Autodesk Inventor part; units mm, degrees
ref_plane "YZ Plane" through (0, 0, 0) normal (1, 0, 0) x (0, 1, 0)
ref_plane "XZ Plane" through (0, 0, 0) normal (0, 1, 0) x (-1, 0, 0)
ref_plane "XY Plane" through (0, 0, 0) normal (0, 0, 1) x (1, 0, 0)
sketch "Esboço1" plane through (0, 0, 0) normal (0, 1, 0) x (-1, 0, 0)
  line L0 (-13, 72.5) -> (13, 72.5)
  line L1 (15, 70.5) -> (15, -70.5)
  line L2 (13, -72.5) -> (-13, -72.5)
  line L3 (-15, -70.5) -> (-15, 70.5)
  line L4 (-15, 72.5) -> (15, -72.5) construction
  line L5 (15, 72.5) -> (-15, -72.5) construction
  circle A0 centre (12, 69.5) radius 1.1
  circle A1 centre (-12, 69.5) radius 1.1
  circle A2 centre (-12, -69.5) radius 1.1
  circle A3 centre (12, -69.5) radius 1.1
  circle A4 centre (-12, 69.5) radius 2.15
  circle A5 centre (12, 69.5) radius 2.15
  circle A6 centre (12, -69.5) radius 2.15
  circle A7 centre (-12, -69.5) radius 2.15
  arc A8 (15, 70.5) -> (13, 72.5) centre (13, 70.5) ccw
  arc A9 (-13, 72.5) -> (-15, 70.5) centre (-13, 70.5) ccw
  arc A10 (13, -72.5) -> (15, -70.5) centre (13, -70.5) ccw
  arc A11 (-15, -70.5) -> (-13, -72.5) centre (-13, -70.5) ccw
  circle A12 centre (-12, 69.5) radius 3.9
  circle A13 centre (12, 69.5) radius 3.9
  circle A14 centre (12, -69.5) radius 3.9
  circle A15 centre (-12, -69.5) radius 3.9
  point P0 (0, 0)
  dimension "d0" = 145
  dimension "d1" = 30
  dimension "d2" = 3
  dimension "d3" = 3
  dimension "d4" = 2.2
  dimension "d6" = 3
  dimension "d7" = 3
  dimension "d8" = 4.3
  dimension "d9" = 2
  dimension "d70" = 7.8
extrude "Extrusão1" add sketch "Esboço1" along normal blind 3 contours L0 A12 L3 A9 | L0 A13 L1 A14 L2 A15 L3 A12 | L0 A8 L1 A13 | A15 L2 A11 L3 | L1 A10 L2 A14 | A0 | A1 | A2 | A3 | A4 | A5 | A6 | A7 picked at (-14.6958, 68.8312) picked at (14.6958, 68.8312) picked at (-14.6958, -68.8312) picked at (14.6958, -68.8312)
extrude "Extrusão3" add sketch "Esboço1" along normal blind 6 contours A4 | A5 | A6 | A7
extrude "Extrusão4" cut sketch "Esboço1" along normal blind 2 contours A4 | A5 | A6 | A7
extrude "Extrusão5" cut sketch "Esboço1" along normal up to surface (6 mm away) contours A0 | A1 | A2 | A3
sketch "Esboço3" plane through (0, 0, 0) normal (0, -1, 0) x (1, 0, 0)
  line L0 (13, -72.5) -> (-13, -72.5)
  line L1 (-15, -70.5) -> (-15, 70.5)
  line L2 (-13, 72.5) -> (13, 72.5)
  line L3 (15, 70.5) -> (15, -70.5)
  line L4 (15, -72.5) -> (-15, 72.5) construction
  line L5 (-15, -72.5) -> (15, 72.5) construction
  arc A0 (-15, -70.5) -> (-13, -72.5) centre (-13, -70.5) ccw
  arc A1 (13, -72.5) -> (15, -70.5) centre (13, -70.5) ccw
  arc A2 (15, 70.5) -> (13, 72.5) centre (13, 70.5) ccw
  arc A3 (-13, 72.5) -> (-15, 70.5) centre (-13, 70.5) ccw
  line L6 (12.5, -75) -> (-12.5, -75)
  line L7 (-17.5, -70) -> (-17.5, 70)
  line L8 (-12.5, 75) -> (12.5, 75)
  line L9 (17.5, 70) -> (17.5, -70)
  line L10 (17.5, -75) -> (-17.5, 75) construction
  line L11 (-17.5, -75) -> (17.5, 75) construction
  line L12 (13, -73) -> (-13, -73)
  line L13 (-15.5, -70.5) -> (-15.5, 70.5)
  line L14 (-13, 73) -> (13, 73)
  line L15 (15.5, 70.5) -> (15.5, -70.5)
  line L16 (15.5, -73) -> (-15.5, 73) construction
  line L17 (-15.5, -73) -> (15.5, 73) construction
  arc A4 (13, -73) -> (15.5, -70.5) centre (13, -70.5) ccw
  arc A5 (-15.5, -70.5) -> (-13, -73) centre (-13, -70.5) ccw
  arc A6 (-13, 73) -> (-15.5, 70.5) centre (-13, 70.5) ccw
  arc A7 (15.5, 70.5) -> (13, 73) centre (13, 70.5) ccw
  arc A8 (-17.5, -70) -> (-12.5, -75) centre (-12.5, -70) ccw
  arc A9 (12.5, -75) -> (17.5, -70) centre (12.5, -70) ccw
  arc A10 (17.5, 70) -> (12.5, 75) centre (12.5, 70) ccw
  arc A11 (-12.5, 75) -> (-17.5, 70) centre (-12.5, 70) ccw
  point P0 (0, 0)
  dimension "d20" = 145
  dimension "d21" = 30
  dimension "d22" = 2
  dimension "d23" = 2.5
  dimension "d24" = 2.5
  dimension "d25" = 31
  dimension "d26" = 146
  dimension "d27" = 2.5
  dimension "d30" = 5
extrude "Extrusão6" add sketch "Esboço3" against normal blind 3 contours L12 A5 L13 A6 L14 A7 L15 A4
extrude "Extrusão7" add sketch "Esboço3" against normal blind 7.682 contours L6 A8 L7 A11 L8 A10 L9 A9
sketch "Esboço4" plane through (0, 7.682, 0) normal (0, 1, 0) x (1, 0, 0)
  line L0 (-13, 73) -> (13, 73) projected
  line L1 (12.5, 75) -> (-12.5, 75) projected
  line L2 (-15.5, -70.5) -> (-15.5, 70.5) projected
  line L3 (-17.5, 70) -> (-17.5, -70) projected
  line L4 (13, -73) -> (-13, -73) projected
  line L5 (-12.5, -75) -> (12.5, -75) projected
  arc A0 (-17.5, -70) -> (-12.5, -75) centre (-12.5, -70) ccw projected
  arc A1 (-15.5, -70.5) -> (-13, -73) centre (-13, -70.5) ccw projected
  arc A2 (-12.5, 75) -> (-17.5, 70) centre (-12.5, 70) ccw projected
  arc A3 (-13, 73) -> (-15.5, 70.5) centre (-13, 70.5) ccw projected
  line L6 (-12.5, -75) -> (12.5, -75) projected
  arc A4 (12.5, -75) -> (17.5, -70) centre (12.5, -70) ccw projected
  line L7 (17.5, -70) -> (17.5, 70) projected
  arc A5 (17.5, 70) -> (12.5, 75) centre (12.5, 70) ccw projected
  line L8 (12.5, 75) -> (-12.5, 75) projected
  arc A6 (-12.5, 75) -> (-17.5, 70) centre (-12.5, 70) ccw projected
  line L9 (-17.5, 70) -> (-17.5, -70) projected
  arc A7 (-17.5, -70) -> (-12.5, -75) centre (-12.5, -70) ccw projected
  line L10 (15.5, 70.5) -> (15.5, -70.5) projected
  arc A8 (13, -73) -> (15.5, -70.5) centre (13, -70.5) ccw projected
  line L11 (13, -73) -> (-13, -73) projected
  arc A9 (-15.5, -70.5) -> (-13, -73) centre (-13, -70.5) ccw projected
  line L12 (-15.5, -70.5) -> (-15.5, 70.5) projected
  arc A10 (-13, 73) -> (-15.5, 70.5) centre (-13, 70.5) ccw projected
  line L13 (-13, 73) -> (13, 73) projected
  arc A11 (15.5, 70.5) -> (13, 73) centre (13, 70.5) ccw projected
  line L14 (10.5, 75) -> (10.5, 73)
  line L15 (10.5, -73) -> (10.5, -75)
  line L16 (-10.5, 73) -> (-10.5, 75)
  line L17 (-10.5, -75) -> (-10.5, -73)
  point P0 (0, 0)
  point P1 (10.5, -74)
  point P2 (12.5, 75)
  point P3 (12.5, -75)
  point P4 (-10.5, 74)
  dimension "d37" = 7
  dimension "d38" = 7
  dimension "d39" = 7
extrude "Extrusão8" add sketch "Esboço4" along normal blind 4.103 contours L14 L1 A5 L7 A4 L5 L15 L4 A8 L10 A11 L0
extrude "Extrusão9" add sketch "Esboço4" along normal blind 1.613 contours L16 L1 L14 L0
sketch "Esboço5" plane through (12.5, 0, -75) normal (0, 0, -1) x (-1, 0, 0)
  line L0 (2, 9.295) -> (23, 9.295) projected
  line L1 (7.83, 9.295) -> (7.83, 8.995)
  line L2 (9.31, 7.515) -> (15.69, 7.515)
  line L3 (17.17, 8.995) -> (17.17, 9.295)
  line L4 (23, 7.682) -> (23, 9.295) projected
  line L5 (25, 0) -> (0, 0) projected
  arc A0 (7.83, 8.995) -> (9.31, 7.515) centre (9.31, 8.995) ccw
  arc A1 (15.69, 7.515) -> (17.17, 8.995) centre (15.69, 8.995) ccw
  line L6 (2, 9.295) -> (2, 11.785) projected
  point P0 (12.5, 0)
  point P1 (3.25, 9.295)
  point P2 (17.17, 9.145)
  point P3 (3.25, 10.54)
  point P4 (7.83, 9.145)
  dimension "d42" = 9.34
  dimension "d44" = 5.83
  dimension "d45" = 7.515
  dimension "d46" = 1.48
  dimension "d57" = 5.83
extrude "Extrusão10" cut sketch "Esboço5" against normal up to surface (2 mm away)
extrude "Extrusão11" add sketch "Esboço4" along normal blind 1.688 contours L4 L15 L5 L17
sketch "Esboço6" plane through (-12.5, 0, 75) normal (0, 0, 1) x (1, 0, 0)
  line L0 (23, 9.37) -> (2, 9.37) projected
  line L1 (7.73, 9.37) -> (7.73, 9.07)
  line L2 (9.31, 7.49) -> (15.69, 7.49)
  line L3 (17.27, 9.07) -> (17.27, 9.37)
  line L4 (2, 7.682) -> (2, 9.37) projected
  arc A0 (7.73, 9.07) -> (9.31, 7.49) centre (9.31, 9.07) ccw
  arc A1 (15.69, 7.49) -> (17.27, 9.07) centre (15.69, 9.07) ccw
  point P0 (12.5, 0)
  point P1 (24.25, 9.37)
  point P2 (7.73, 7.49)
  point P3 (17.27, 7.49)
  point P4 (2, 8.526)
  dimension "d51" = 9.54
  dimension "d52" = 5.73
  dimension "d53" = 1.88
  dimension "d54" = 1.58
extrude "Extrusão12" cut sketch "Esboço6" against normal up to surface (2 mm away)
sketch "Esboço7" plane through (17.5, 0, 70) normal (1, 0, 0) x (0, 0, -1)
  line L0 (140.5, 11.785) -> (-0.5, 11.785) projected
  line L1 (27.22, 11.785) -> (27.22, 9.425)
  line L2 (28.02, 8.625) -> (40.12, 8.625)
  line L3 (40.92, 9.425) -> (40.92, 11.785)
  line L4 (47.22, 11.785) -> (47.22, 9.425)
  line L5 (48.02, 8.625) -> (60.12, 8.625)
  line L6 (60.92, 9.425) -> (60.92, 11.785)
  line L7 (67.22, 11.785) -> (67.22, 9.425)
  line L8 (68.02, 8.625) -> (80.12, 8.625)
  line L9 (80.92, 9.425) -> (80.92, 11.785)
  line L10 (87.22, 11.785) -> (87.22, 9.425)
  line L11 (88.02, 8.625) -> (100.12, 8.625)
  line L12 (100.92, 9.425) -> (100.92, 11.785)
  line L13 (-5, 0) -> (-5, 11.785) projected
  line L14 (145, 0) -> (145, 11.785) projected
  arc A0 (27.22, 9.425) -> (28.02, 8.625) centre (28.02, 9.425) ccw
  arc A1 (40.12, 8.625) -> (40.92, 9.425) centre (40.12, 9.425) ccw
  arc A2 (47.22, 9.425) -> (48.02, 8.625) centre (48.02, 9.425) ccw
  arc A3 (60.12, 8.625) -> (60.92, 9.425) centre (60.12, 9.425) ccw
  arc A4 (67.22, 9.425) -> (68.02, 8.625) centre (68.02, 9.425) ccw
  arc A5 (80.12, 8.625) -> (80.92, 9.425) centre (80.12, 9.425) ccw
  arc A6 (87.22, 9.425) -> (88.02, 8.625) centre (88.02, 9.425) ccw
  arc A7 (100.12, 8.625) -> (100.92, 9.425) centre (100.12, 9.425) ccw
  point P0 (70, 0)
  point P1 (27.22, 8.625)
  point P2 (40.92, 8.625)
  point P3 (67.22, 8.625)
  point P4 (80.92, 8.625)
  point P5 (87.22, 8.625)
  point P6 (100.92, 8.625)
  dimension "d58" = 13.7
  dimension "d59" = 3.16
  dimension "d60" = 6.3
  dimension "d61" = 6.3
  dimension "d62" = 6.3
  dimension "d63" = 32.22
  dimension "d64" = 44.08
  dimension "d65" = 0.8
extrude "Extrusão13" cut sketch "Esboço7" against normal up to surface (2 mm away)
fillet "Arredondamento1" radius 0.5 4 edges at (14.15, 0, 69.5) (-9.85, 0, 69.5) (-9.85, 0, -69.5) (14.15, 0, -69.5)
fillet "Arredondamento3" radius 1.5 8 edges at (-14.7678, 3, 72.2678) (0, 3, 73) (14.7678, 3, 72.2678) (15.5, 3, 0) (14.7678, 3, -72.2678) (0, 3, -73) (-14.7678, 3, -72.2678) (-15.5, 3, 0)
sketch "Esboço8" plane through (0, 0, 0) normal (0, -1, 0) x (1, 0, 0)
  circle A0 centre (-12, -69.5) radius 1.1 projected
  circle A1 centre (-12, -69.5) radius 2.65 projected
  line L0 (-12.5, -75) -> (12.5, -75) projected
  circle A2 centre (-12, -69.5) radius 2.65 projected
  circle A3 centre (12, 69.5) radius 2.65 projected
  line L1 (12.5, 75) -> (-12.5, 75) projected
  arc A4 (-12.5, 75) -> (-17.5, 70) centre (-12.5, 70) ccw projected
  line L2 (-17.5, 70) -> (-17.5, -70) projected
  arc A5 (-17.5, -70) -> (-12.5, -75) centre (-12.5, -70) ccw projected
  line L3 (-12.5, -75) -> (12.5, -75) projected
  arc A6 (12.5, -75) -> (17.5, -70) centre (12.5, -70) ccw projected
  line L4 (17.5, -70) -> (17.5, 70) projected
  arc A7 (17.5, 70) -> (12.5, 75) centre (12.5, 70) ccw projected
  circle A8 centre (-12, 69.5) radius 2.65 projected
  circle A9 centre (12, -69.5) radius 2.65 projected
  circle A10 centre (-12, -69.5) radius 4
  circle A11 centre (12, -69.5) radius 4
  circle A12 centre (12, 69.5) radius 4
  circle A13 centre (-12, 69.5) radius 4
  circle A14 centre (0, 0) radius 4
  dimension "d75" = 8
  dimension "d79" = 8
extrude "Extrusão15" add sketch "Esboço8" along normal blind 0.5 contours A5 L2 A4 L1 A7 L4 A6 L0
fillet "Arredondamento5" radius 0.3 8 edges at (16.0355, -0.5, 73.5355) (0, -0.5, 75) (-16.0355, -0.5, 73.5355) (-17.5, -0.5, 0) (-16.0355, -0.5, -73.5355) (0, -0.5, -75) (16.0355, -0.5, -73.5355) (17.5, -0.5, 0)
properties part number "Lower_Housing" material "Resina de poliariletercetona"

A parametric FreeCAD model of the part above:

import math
import FreeCAD as App
import Part
import Sketcher
from FreeCAD import Vector
Q = App.Units.Quantity


def edges_at(feature, points):
    """Names of the edges that pass closest to the given points."""
    edges = feature.Shape.Edges
    near = lambda p: min(range(len(edges)), key=lambda i: edges[i].distToShape(Part.Vertex(*p))[0])
    return sorted({f"Edge{near(p) + 1}" for p in points})


def add_polygon(sketch, points):
    """Adds a closed chain of lines whose ends are joined by coincident constraints."""
    first, n = sketch.GeometryCount, len(points)
    for a, b in zip(points, points[1:] + points[:1]):
        sketch.addGeometry(Part.LineSegment(App.Vector(*a, 0), App.Vector(*b, 0)), False)
    for i in range(n):
        sketch.addConstraint(Sketcher.Constraint("Coincident", first + i, 2, first + (i + 1) % n, 1))

doc = App.newDocument("Part")
params = doc.addObject("Spreadsheet::Sheet", "Params")
for row, (alias, value) in enumerate([
    ("sketch1_radius", "2 mm"),
    ("sketch1_height", "141 mm"),
    ("pad1_length", "3 mm"),
    ("sketch2_diameter", "4.3 mm"),
    ("sketch2_diameter2", "2.2 mm"),
    ("pad2_length", "6 mm"),
    ("sketch3_diameter", "4.3 mm"),
    ("sketch3_diameter2", "2.2 mm"),
    ("pocket1_length", "2 mm"),
    ("sketch4_diameter", "2.2 mm"),
    ("pocket2_length", "6 mm"),
    ("sketch5_radius", "2 mm"),
    ("sketch5_radius2", "2.5 mm"),
    ("sketch5_width", "26 mm"),
    ("sketch5_height", "141 mm"),
    ("pad3_length", "3 mm"),
    ("sketch6_radius", "5 mm"),
    ("sketch6_radius2", "2.5 mm"),
    ("pad4_length", "7.682 mm"),
    ("sketch7_radius", "5 mm"),
    ("sketch7_radius2", "2.5 mm"),
    ("sketch7_height", "141 mm"),
    ("sketch7_width", "2.5 mm"),
    ("pad5_length", "4.103 mm"),
    ("sketch8_width", "21 mm"),
    ("sketch8_height", "2 mm"),
    ("pad6_length", "1.613 mm"),
    ("sketch9_radius", "1.48 mm"),
    ("sketch9_width", "9.34 mm"),
    ("sketch9_height", "0.3 mm"),
    ("pocket3_length", "2 mm"),
    ("sketch10_width", "21 mm"),
    ("sketch10_height", "2 mm"),
    ("pad7_length", "1.688 mm"),
    ("sketch11_radius", "1.58 mm"),
    ("sketch11_width", "9.54 mm"),
    ("pocket4_length", "2 mm"),
    ("sketch12_radius", "0.8 mm"),
    ("sketch12_height", "13.7 mm"),
    ("pocket5_length", "2 mm"),
    ("fillet_radius", "0.5 mm"),
    ("fillet2_radius", "1.5 mm"),
    ("sketch13_diameter", "8 mm"),
    ("sketch13_radius", "5 mm"),
    ("sketch13_width", "25 mm"),
    ("sketch13_height", "140 mm"),
    ("pad8_length", "0.5 mm"),
    ("fillet3_radius", "0.3 mm"),
], start=1):
    params.set(f"A{row}", alias)
    params.set(f"B{row}", "=" + value)
    params.setAlias(f"B{row}", alias)

body = doc.addObject("PartDesign::Body", "Body")

# Sketch on XZ plane
sketch1 = body.newObject("Sketcher::SketchObject", "Sketch")
sketch1.AttachmentSupport = (doc.getObject("XZ_Plane"), [""])
sketch1.MapMode = "FlatFace"
sketch1.addGeometry([
    Part.ArcOfCircle(Part.Circle(Vector(13, 70.5, 0), Vector(0, 0, 1), 2), math.radians(0), math.radians(90)),  # 0
    Part.LineSegment(Vector(15, 70.5, 0), Vector(15, -70.5, 0)),  # 1
    Part.ArcOfCircle(Part.Circle(Vector(13, -70.5, 0), Vector(0, 0, 1), 2), math.radians(-90), math.radians(0)),  # 2
    Part.LineSegment(Vector(13, -72.5, 0), Vector(-13, -72.5, 0)),  # 3
    Part.ArcOfCircle(Part.Circle(Vector(-13, -70.5, 0), Vector(0, 0, 1), 2), math.radians(180), math.radians(270)),  # 4
    Part.LineSegment(Vector(-15, -70.5, 0), Vector(-15, 70.5, 0)),  # 5
    Part.ArcOfCircle(Part.Circle(Vector(-13, 70.5, 0), Vector(0, 0, 1), 2), math.radians(90), math.radians(180)),  # 6
    Part.LineSegment(Vector(-13, 72.5, 0), Vector(13, 72.5, 0)),  # 7
], False)
sketch1.addConstraint([
    Sketcher.Constraint("Tangent", 0, 1, 1, 1),
    Sketcher.Constraint("Tangent", 1, 2, 2, 2),
    Sketcher.Constraint("Tangent", 2, 1, 3, 1),
    Sketcher.Constraint("Tangent", 3, 2, 4, 2),
    Sketcher.Constraint("Tangent", 4, 1, 5, 1),
    Sketcher.Constraint("Tangent", 5, 2, 6, 2),
    Sketcher.Constraint("Tangent", 6, 1, 7, 1),
    Sketcher.Constraint("Tangent", 7, 2, 0, 2),
    Sketcher.Constraint("Vertical", 1),
    Sketcher.Constraint("Horizontal", 3),
    Sketcher.Constraint("Vertical", 5),
    Sketcher.Constraint("Horizontal", 7),
    Sketcher.Constraint("Equal", 0, 2),
    Sketcher.Constraint("Equal", 2, 4),
    Sketcher.Constraint("Equal", 4, 6),
    Sketcher.Constraint("Symmetric", 0, 3, 4, 3, -1, 1),
    Sketcher.Constraint("Radius", 0, Q("2 mm")),
    Sketcher.Constraint("DistanceX", 4, 1, 1, 2, Q("30 mm")),
    Sketcher.Constraint("DistanceY", 1, 2, 1, 1, Q("141 mm")),
])
sketch1.setExpression("Constraints[16]", "Params.sketch1_radius")
sketch1.setExpression("Constraints[18]", "Params.sketch1_height")
pad1 = body.newObject("PartDesign::Pad", "Pad")
pad1.Profile = sketch1
pad1.setExpression("Length", "Params.pad1_length")
pad1.Reversed = True

# Sketch on XZ plane
sketch2 = body.newObject("Sketcher::SketchObject", "Sketch001")
sketch2.AttachmentSupport = (doc.getObject("XZ_Plane"), [""])
sketch2.MapMode = "FlatFace"
sketch2.addGeometry([
    Part.Circle(Vector(12, 69.5, 0), Vector(0, 0, 1), 2.1),  # 0
    Part.Circle(Vector(12, 69.5, 0), Vector(0, 0, 1), 1.1),  # 1
    Part.Circle(Vector(-12, 69.5, 0), Vector(0, 0, 1), 2.1),  # 2
    Part.Circle(Vector(-12, 69.5, 0), Vector(0, 0, 1), 1.1),  # 3
    Part.Circle(Vector(-12, -69.5, 0), Vector(0, 0, 1), 2.1),  # 4
    Part.Circle(Vector(-12, -69.5, 0), Vector(0, 0, 1), 1.1),  # 5
    Part.Circle(Vector(12, -69.5, 0), Vector(0, 0, 1), 2.1),  # 6
    Part.Circle(Vector(12, -69.5, 0), Vector(0, 0, 1), 1.1),  # 7
], False)
sketch2.addConstraint([
    Sketcher.Constraint("Coincident", 1, 3, 0, 3),
    Sketcher.Constraint("Coincident", 3, 3, 2, 3),
    Sketcher.Constraint("Coincident", 5, 3, 4, 3),
    Sketcher.Constraint("Coincident", 7, 3, 6, 3),
    Sketcher.Constraint("Equal", 0, 2),
    Sketcher.Constraint("Equal", 1, 3),
    Sketcher.Constraint("Equal", 2, 4),
    Sketcher.Constraint("Equal", 3, 5),
    Sketcher.Constraint("Equal", 4, 6),
    Sketcher.Constraint("Equal", 5, 7),
    Sketcher.Constraint("Symmetric", 0, 3, 4, 3, -1, 1),
    Sketcher.Constraint("Symmetric", 2, 3, 6, 3, -1, 1),
    Sketcher.Constraint("Symmetric", 0, 3, 2, 3, -2),
    Sketcher.Constraint("Diameter", 0, Q("4.3 mm")),
    Sketcher.Constraint("Diameter", 1, Q("2.2 mm")),
    Sketcher.Constraint("DistanceX", -1, 1, 0, 3, Q("12 mm")),
    Sketcher.Constraint("DistanceY", 4, 3, 2, 3, Q("139 mm")),
])
sketch2.setExpression("Constraints[13]", "Params.sketch2_diameter")
sketch2.setExpression("Constraints[14]", "Params.sketch2_diameter2")
pad2 = body.newObject("PartDesign::Pad", "Pad001")
pad2.Profile = sketch2
pad2.setExpression("Length", "Params.pad2_length")
pad2.Reversed = True

# Sketch on XZ plane
sketch3 = body.newObject("Sketcher::SketchObject", "Sketch002")
sketch3.AttachmentSupport = (doc.getObject("XZ_Plane"), [""])
sketch3.MapMode = "FlatFace"
sketch3.addGeometry([
    Part.Circle(Vector(12, 69.5, 0), Vector(0, 0, 1), 2.1),  # 0
    Part.Circle(Vector(12, 69.5, 0), Vector(0, 0, 1), 1.1),  # 1
    Part.Circle(Vector(-12, 69.5, 0), Vector(0, 0, 1), 2.1),  # 2
    Part.Circle(Vector(-12, 69.5, 0), Vector(0, 0, 1), 1.1),  # 3
    Part.Circle(Vector(-12, -69.5, 0), Vector(0, 0, 1), 2.1),  # 4
    Part.Circle(Vector(-12, -69.5, 0), Vector(0, 0, 1), 1.1),  # 5
    Part.Circle(Vector(12, -69.5, 0), Vector(0, 0, 1), 2.1),  # 6
    Part.Circle(Vector(12, -69.5, 0), Vector(0, 0, 1), 1.1),  # 7
], False)
sketch3.addConstraint([
    Sketcher.Constraint("Coincident", 1, 3, 0, 3),
    Sketcher.Constraint("Coincident", 3, 3, 2, 3),
    Sketcher.Constraint("Coincident", 5, 3, 4, 3),
    Sketcher.Constraint("Coincident", 7, 3, 6, 3),
    Sketcher.Constraint("Equal", 0, 2),
    Sketcher.Constraint("Equal", 1, 3),
    Sketcher.Constraint("Equal", 2, 4),
    Sketcher.Constraint("Equal", 3, 5),
    Sketcher.Constraint("Equal", 4, 6),
    Sketcher.Constraint("Equal", 5, 7),
    Sketcher.Constraint("Symmetric", 0, 3, 4, 3, -1, 1),
    Sketcher.Constraint("Symmetric", 2, 3, 6, 3, -1, 1),
    Sketcher.Constraint("Symmetric", 0, 3, 2, 3, -2),
    Sketcher.Constraint("Diameter", 0, Q("4.3 mm")),
    Sketcher.Constraint("Diameter", 1, Q("2.2 mm")),
    Sketcher.Constraint("DistanceX", -1, 1, 0, 3, Q("12 mm")),
    Sketcher.Constraint("DistanceY", 4, 3, 2, 3, Q("139 mm")),
])
sketch3.setExpression("Constraints[13]", "Params.sketch3_diameter")
sketch3.setExpression("Constraints[14]", "Params.sketch3_diameter2")
pocket1 = body.newObject("PartDesign::Pocket", "Pocket")
pocket1.Profile = sketch3
pocket1.setExpression("Length", "Params.pocket1_length")

# Sketch on XZ plane
sketch4 = body.newObject("Sketcher::SketchObject", "Sketch003")
sketch4.AttachmentSupport = (doc.getObject("XZ_Plane"), [""])
sketch4.MapMode = "FlatFace"
sketch4.addGeometry([
    Part.Circle(Vector(-12, 69.5, 0), Vector(0, 0, 1), 1.1),
    Part.Circle(Vector(12, 69.5, 0), Vector(0, 0, 1), 1.1),
    Part.Circle(Vector(12, -69.5, 0), Vector(0, 0, 1), 1.1),
    Part.Circle(Vector(-12, -69.5, 0), Vector(0, 0, 1), 1.1),
], False)
sketch4.addConstraint([
    Sketcher.Constraint("Equal", 0, 1),
    Sketcher.Constraint("Equal", 1, 2),
    Sketcher.Constraint("Equal", 2, 3),
    Sketcher.Constraint("Symmetric", 0, 3, 2, 3, -1, 1),
    Sketcher.Constraint("Symmetric", 1, 3, 3, 3, -1, 1),
    Sketcher.Constraint("Symmetric", 0, 3, 1, 3, -2),
    Sketcher.Constraint("Diameter", 0, Q("2.2 mm")),
    Sketcher.Constraint("DistanceX", 0, 3, -1, 1, Q("12 mm")),
    Sketcher.Constraint("DistanceY", 2, 3, 1, 3, Q("139 mm")),
])
sketch4.setExpression("Constraints[6]", "Params.sketch4_diameter")
pocket2 = body.newObject("PartDesign::Pocket", "Pocket001")
pocket2.Profile = sketch4
pocket2.setExpression("Length", "Params.pocket2_length")

# Sketch on XZ plane
sketch5 = body.newObject("Sketcher::SketchObject", "Sketch004")
sketch5.AttachmentSupport = (doc.getObject("XZ_Plane"), [""])
sketch5.MapMode = "FlatFace"
sketch5.addGeometry([
    Part.LineSegment(Vector(-13, -73, 0), Vector(13, -73, 0)),  # 0
    Part.ArcOfCircle(Part.Circle(Vector(13, -70.5, 0), Vector(0, 0, 1), 2.5), math.radians(-90), math.radians(0)),  # 1
    Part.LineSegment(Vector(15.5, -70.5, 0), Vector(15.5, 70.5, 0)),  # 2
    Part.ArcOfCircle(Part.Circle(Vector(13, 70.5, 0), Vector(0, 0, 1), 2.5), math.radians(0), math.radians(90)),  # 3
    Part.LineSegment(Vector(13, 73, 0), Vector(-13, 73, 0)),  # 4
    Part.ArcOfCircle(Part.Circle(Vector(-13, 70.5, 0), Vector(0, 0, 1), 2.5), math.radians(90), math.radians(180)),  # 5
    Part.LineSegment(Vector(-15.5, 70.5, 0), Vector(-15.5, -70.5, 0)),  # 6
    Part.ArcOfCircle(Part.Circle(Vector(-13, -70.5, 0), Vector(0, 0, 1), 2.5), math.radians(180), math.radians(270)),  # 7
    Part.ArcOfCircle(Part.Circle(Vector(13, -70.5, 0), Vector(0, 0, 1), 2), math.radians(-90), math.radians(0)),  # 8
    Part.LineSegment(Vector(13, -72.5, 0), Vector(-13, -72.5, 0)),  # 9
    Part.ArcOfCircle(Part.Circle(Vector(-13, -70.5, 0), Vector(0, 0, 1), 2), math.radians(180), math.radians(270)),  # 10
    Part.LineSegment(Vector(-15, -70.5, 0), Vector(-15, 70.5, 0)),  # 11
    Part.ArcOfCircle(Part.Circle(Vector(-13, 70.5, 0), Vector(0, 0, 1), 2), math.radians(90), math.radians(180)),  # 12
    Part.LineSegment(Vector(-13, 72.5, 0), Vector(13, 72.5, 0)),  # 13
    Part.ArcOfCircle(Part.Circle(Vector(13, 70.5, 0), Vector(0, 0, 1), 2), math.radians(0), math.radians(90)),  # 14
    Part.LineSegment(Vector(15, 70.5, 0), Vector(15, -70.5, 0)),  # 15
], False)
sketch5.addConstraint([
    Sketcher.Constraint("Tangent", 0, 2, 1, 1),
    Sketcher.Constraint("Tangent", 1, 2, 2, 1),
    Sketcher.Constraint("Tangent", 2, 2, 3, 1),
    Sketcher.Constraint("Tangent", 3, 2, 4, 1),
    Sketcher.Constraint("Tangent", 4, 2, 5, 1),
    Sketcher.Constraint("Tangent", 5, 2, 6, 1),
    Sketcher.Constraint("Tangent", 6, 2, 7, 1),
    Sketcher.Constraint("Tangent", 7, 2, 0, 1),
    Sketcher.Constraint("Tangent", 8, 1, 9, 1),
    Sketcher.Constraint("Tangent", 9, 2, 10, 2),
    Sketcher.Constraint("Tangent", 10, 1, 11, 1),
    Sketcher.Constraint("Tangent", 11, 2, 12, 2),
    Sketcher.Constraint("Tangent", 12, 1, 13, 1),
    Sketcher.Constraint("Tangent", 13, 2, 14, 2),
    Sketcher.Constraint("Tangent", 14, 1, 15, 1),
    Sketcher.Constraint("Tangent", 15, 2, 8, 2),
    Sketcher.Constraint("Horizontal", 0),
    Sketcher.Constraint("Vertical", 2),
    Sketcher.Constraint("Horizontal", 4),
    Sketcher.Constraint("Vertical", 6),
    Sketcher.Constraint("Horizontal", 9),
    Sketcher.Constraint("Vertical", 11),
    Sketcher.Constraint("Horizontal", 13),
    Sketcher.Constraint("Vertical", 15),
    Sketcher.Constraint("Coincident", 8, 3, 1, 3),
    Sketcher.Constraint("Coincident", 10, 3, 7, 3),
    Sketcher.Constraint("Coincident", 12, 3, 5, 3),
    Sketcher.Constraint("Equal", 1, 3),
    Sketcher.Constraint("Equal", 3, 5),
    Sketcher.Constraint("Equal", 5, 7),
    Sketcher.Constraint("Equal", 12, 14),
    Sketcher.Constraint("Symmetric", 1, 3, 5, 3, -1, 1),
    Sketcher.Constraint("Radius", 8, Q("2 mm")),
    Sketcher.Constraint("Radius", 1, Q("2.5 mm")),
    Sketcher.Constraint("DistanceX", 0, 1, 0, 2, Q("26 mm")),
    Sketcher.Constraint("DistanceY", 2, 1, 2, 2, Q("141 mm")),
])
sketch5.setExpression("Constraints[32]", "Params.sketch5_radius")
sketch5.setExpression("Constraints[33]", "Params.sketch5_radius2")
sketch5.setExpression("Constraints[34]", "Params.sketch5_width")
sketch5.setExpression("Constraints[35]", "Params.sketch5_height")
pad3 = body.newObject("PartDesign::Pad", "Pad002")
pad3.Profile = sketch5
pad3.setExpression("Length", "Params.pad3_length")
pad3.Reversed = True

# Sketch on XZ plane
sketch6 = body.newObject("Sketcher::SketchObject", "Sketch005")
sketch6.AttachmentSupport = (doc.getObject("XZ_Plane"), [""])
sketch6.MapMode = "FlatFace"
sketch6.addGeometry([
    Part.LineSegment(Vector(-12.5, -75, 0), Vector(12.5, -75, 0)),  # 0
    Part.ArcOfCircle(Part.Circle(Vector(12.5, -70, 0), Vector(0, 0, 1), 5), math.radians(-90), math.radians(0)),  # 1
    Part.LineSegment(Vector(17.5, -70, 0), Vector(17.5, 70, 0)),  # 2
    Part.ArcOfCircle(Part.Circle(Vector(12.5, 70, 0), Vector(0, 0, 1), 5), math.radians(0), math.radians(90)),  # 3
    Part.LineSegment(Vector(12.5, 75, 0), Vector(-12.5, 75, 0)),  # 4
    Part.ArcOfCircle(Part.Circle(Vector(-12.5, 70, 0), Vector(0, 0, 1), 5), math.radians(90), math.radians(180)),  # 5
    Part.LineSegment(Vector(-17.5, 70, 0), Vector(-17.5, -70, 0)),  # 6
    Part.ArcOfCircle(Part.Circle(Vector(-12.5, -70, 0), Vector(0, 0, 1), 5), math.radians(180), math.radians(270)),  # 7
    Part.ArcOfCircle(Part.Circle(Vector(13, -70.5, 0), Vector(0, 0, 1), 2.5), math.radians(-90), math.radians(0)),  # 8
    Part.LineSegment(Vector(13, -73, 0), Vector(-13, -73, 0)),  # 9
    Part.ArcOfCircle(Part.Circle(Vector(-13, -70.5, 0), Vector(0, 0, 1), 2.5), math.radians(180), math.radians(270)),  # 10
    Part.LineSegment(Vector(-15.5, -70.5, 0), Vector(-15.5, 70.5, 0)),  # 11
    Part.ArcOfCircle(Part.Circle(Vector(-13, 70.5, 0), Vector(0, 0, 1), 2.5), math.radians(90), math.radians(180)),  # 12
    Part.LineSegment(Vector(-13, 73, 0), Vector(13, 73, 0)),  # 13
    Part.ArcOfCircle(Part.Circle(Vector(13, 70.5, 0), Vector(0, 0, 1), 2.5), math.radians(0), math.radians(90)),  # 14
    Part.LineSegment(Vector(15.5, 70.5, 0), Vector(15.5, -70.5, 0)),  # 15
], False)
sketch6.addConstraint([
    Sketcher.Constraint("Tangent", 0, 2, 1, 1),
    Sketcher.Constraint("Tangent", 1, 2, 2, 1),
    Sketcher.Constraint("Tangent", 2, 2, 3, 1),
    Sketcher.Constraint("Tangent", 3, 2, 4, 1),
    Sketcher.Constraint("Tangent", 4, 2, 5, 1),
    Sketcher.Constraint("Tangent", 5, 2, 6, 1),
    Sketcher.Constraint("Tangent", 6, 2, 7, 1),
    Sketcher.Constraint("Tangent", 7, 2, 0, 1),
    Sketcher.Constraint("Tangent", 8, 1, 9, 1),
    Sketcher.Constraint("Tangent", 9, 2, 10, 2),
    Sketcher.Constraint("Tangent", 10, 1, 11, 1),
    Sketcher.Constraint("Tangent", 11, 2, 12, 2),
    Sketcher.Constraint("Tangent", 12, 1, 13, 1),
    Sketcher.Constraint("Tangent", 13, 2, 14, 2),
    Sketcher.Constraint("Tangent", 14, 1, 15, 1),
    Sketcher.Constraint("Tangent", 15, 2, 8, 2),
    Sketcher.Constraint("Horizontal", 0),
    Sketcher.Constraint("Vertical", 2),
    Sketcher.Constraint("Horizontal", 4),
    Sketcher.Constraint("Vertical", 6),
    Sketcher.Constraint("Horizontal", 9),
    Sketcher.Constraint("Vertical", 11),
    Sketcher.Constraint("Horizontal", 13),
    Sketcher.Constraint("Vertical", 15),
    Sketcher.Constraint("Equal", 1, 3),
    Sketcher.Constraint("Equal", 3, 5),
    Sketcher.Constraint("Equal", 5, 7),
    Sketcher.Constraint("Equal", 8, 10),
    Sketcher.Constraint("Equal", 10, 12),
    Sketcher.Constraint("Equal", 12, 14),
    Sketcher.Constraint("Symmetric", 1, 3, 5, 3, -1, 1),
    Sketcher.Constraint("Symmetric", 8, 3, 12, 3, -1, 1),
    Sketcher.Constraint("Radius", 1, Q("5 mm")),
    Sketcher.Constraint("Radius", 8, Q("2.5 mm")),
    Sketcher.Constraint("DistanceY", 0, 2, 3, 3, Q("145 mm")),
    Sketcher.Constraint("DistanceX", 7, 3, 1, 2, Q("30 mm")),
    Sketcher.Constraint("DistanceY", 0, 2, 8, 1, Q("2 mm")),
    Sketcher.Constraint("DistanceX", 6, 2, 10, 1, Q("2 mm")),
])
sketch6.setExpression("Constraints[32]", "Params.sketch6_radius")
sketch6.setExpression("Constraints[33]", "Params.sketch6_radius2")
pad4 = body.newObject("PartDesign::Pad", "Pad003")
pad4.Profile = sketch6
pad4.setExpression("Length", "Params.pad4_length")
pad4.Reversed = True

# Sketch on XZ plane
sketch7 = body.newObject("Sketcher::SketchObject", "Sketch006")
sketch7.AttachmentSupport = (doc.getObject("XZ_Plane"), [""])
sketch7.MapMode = "FlatFace"
sketch7.AttachmentOffset = App.Placement(Vector(0, 0, -7.682), App.Rotation())
sketch7.addGeometry([
    Part.LineSegment(Vector(10.5, -75, 0), Vector(10.5, -73, 0)),  # 0
    Part.LineSegment(Vector(10.5, -73, 0), Vector(13, -73, 0)),  # 1
    Part.ArcOfCircle(Part.Circle(Vector(13, -70.5, 0), Vector(0, 0, 1), 2.5), math.radians(-90), math.radians(0)),  # 2
    Part.LineSegment(Vector(15.5, -70.5, 0), Vector(15.5, 70.5, 0)),  # 3
    Part.ArcOfCircle(Part.Circle(Vector(13, 70.5, 0), Vector(0, 0, 1), 2.5), math.radians(0), math.radians(90)),  # 4
    Part.LineSegment(Vector(13, 73, 0), Vector(10.5, 73, 0)),  # 5
    Part.LineSegment(Vector(10.5, 73, 0), Vector(10.5, 75, 0)),  # 6
    Part.LineSegment(Vector(10.5, 75, 0), Vector(12.5, 75, 0)),  # 7
    Part.ArcOfCircle(Part.Circle(Vector(12.5, 70, 0), Vector(0, 0, 1), 5), math.radians(0), math.radians(90)),  # 8
    Part.LineSegment(Vector(17.5, 70, 0), Vector(17.5, -70, 0)),  # 9
    Part.ArcOfCircle(Part.Circle(Vector(12.5, -70, 0), Vector(0, 0, 1), 5), math.radians(-90), math.radians(0)),  # 10
    Part.LineSegment(Vector(12.5, -75, 0), Vector(10.5, -75, 0)),  # 11
], False)
sketch7.addConstraint([
    Sketcher.Constraint("Coincident", 0, 2, 1, 1),
    Sketcher.Constraint("Tangent", 1, 2, 2, 1),
    Sketcher.Constraint("Tangent", 2, 2, 3, 1),
    Sketcher.Constraint("Tangent", 3, 2, 4, 1),
    Sketcher.Constraint("Tangent", 4, 2, 5, 1),
    Sketcher.Constraint("Coincident", 5, 2, 6, 1),
    Sketcher.Constraint("Coincident", 6, 2, 7, 1),
    Sketcher.Constraint("Tangent", 7, 2, 8, 2),
    Sketcher.Constraint("Tangent", 8, 1, 9, 1),
    Sketcher.Constraint("Tangent", 9, 2, 10, 2),
    Sketcher.Constraint("Tangent", 10, 1, 11, 1),
    Sketcher.Constraint("Coincident", 11, 2, 0, 1),
    Sketcher.Constraint("Vertical", 0),
    Sketcher.Constraint("Horizontal", 1),
    Sketcher.Constraint("Vertical", 3),
    Sketcher.Constraint("Horizontal", 5),
    Sketcher.Constraint("Vertical", 6),
    Sketcher.Constraint("Horizontal", 7),
    Sketcher.Constraint("Vertical", 9),
    Sketcher.Constraint("Horizontal", 11),
    Sketcher.Constraint("Equal", 2, 4),
    Sketcher.Constraint("Equal", 8, 10),
    Sketcher.Constraint("Symmetric", 0, 2, 5, 2, -1),
    Sketcher.Constraint("Equal", 11, 0),
    Sketcher.Constraint("Equal", 0, 6),
    Sketcher.Constraint("Radius", 8, Q("5 mm")),
    Sketcher.Constraint("DistanceX", 0, 2, 9, 2, Q("7 mm")),
    Sketcher.Constraint("Radius", 2, Q("2.5 mm")),
    Sketcher.Constraint("DistanceY", 3, 1, 3, 2, Q("141 mm")),
    Sketcher.Constraint("DistanceX", 1, 1, 1, 2, Q("2.5 mm")),
    Sketcher.Constraint("DistanceX", -1, 1, 2, 3, Q("13 mm")),
])
sketch7.setExpression("Constraints[25]", "Params.sketch7_radius")
sketch7.setExpression("Constraints[27]", "Params.sketch7_radius2")
sketch7.setExpression("Constraints[28]", "Params.sketch7_height")
sketch7.setExpression("Constraints[29]", "Params.sketch7_width")
pad5 = body.newObject("PartDesign::Pad", "Pad004")
pad5.Profile = sketch7
pad5.setExpression("Length", "Params.pad5_length")
pad5.Reversed = True

# Sketch on XZ plane
sketch8 = body.newObject("Sketcher::SketchObject", "Sketch007")
sketch8.AttachmentSupport = (doc.getObject("XZ_Plane"), [""])
sketch8.MapMode = "FlatFace"
sketch8.AttachmentOffset = App.Placement(Vector(0, 0, -7.682), App.Rotation())
add_polygon(sketch8, [(-10.5, -75), (-10.5, -73), (10.5, -73), (10.5, -75)])  # lines 0-3
sketch8.addConstraint([
    Sketcher.Constraint("Vertical", 0),
    Sketcher.Constraint("Horizontal", 1),
    Sketcher.Constraint("Vertical", 2),
    Sketcher.Constraint("Horizontal", 3),
    Sketcher.Constraint("DistanceX", 1, 1, 1, 2, Q("21 mm")),
    Sketcher.Constraint("DistanceY", 0, 1, 0, 2, Q("2 mm")),
    Sketcher.Constraint("DistanceY", 0, 2, -1, 1, Q("73 mm")),
    Sketcher.Constraint("DistanceX", 0, 2, -1, 1, Q("10.5 mm")),
])
sketch8.setExpression("Constraints[8]", "Params.sketch8_width")
sketch8.setExpression("Constraints[9]", "Params.sketch8_height")
pad6 = body.newObject("PartDesign::Pad", "Pad005")
pad6.Profile = sketch8
pad6.setExpression("Length", "Params.pad6_length")
pad6.Reversed = True

# Sketch on XY plane
sketch9 = body.newObject("Sketcher::SketchObject", "Sketch008")
sketch9.AttachmentSupport = (doc.getObject("XY_Plane"), [""])
sketch9.MapMode = "FlatFace"
sketch9.AttachmentOffset = App.Placement(Vector(0, 0, -75), App.Rotation())
sketch9.addGeometry([
    Part.LineSegment(Vector(-4.67, 9.29, 0), Vector(4.67, 9.29, 0)),  # 0
    Part.LineSegment(Vector(4.67, 9.29, 0), Vector(4.67, 8.99, 0)),  # 1
    Part.ArcOfCircle(Part.Circle(Vector(3.19, 8.99, 0), Vector(0, 0, 1), 1.48), math.radians(-90), math.radians(0)),  # 2
    Part.LineSegment(Vector(3.19, 7.51, 0), Vector(-3.19, 7.51, 0)),  # 3
    Part.ArcOfCircle(Part.Circle(Vector(-3.19, 8.99, 0), Vector(0, 0, 1), 1.48), math.radians(180), math.radians(270)),  # 4
    Part.LineSegment(Vector(-4.67, 8.99, 0), Vector(-4.67, 9.29, 0)),  # 5
], False)
sketch9.addConstraint([
    Sketcher.Constraint("Coincident", 0, 2, 1, 1),
    Sketcher.Constraint("Tangent", 1, 2, 2, 2),
    Sketcher.Constraint("Tangent", 2, 1, 3, 1),
    Sketcher.Constraint("Tangent", 3, 2, 4, 2),
    Sketcher.Constraint("Tangent", 4, 1, 5, 1),
    Sketcher.Constraint("Coincident", 5, 2, 0, 1),
    Sketcher.Constraint("Horizontal", 0),
    Sketcher.Constraint("Vertical", 1),
    Sketcher.Constraint("Horizontal", 3),
    Sketcher.Constraint("Vertical", 5),
    Sketcher.Constraint("Equal", 2, 4),
    Sketcher.Constraint("Radius", 2, Q("1.48 mm")),
    Sketcher.Constraint("DistanceX", 0, 1, 0, 2, Q("9.34 mm")),
    Sketcher.Constraint("DistanceY", 1, 2, 1, 1, Q("0.3 mm")),
    Sketcher.Constraint("DistanceY", -1, 1, 2, 1, Q("7.515 mm")),
    Sketcher.Constraint("DistanceX", -1, 1, 2, 3, Q("3.19 mm")),
])
sketch9.setExpression("Constraints[11]", "Params.sketch9_radius")
sketch9.setExpression("Constraints[12]", "Params.sketch9_width")
sketch9.setExpression("Constraints[13]", "Params.sketch9_height")
pocket3 = body.newObject("PartDesign::Pocket", "Pocket002")
pocket3.Profile = sketch9
pocket3.setExpression("Length", "Params.pocket3_length")
pocket3.Reversed = True

# Sketch on XZ plane
sketch10 = body.newObject("Sketcher::SketchObject", "Sketch009")
sketch10.AttachmentSupport = (doc.getObject("XZ_Plane"), [""])
sketch10.MapMode = "FlatFace"
sketch10.AttachmentOffset = App.Placement(Vector(0, 0, -7.682), App.Rotation())
add_polygon(sketch10, [(10.5, 73), (-10.5, 73), (-10.5, 75), (10.5, 75)])  # lines 0-3
sketch10.addConstraint([
    Sketcher.Constraint("Horizontal", 0),
    Sketcher.Constraint("Vertical", 1),
    Sketcher.Constraint("Horizontal", 2),
    Sketcher.Constraint("Vertical", 3),
    Sketcher.Constraint("DistanceX", 0, 2, 0, 1, Q("21 mm")),
    Sketcher.Constraint("DistanceY", 1, 1, 1, 2, Q("2 mm")),
    Sketcher.Constraint("DistanceY", -1, 1, 0, 2, Q("73 mm")),
    Sketcher.Constraint("DistanceX", 0, 2, -1, 1, Q("10.5 mm")),
])
sketch10.setExpression("Constraints[8]", "Params.sketch10_width")
sketch10.setExpression("Constraints[9]", "Params.sketch10_height")
pad7 = body.newObject("PartDesign::Pad", "Pad006")
pad7.Profile = sketch10
pad7.setExpression("Length", "Params.pad7_length")
pad7.Reversed = True

# Sketch on XY plane
sketch11 = body.newObject("Sketcher::SketchObject", "Sketch010")
sketch11.AttachmentSupport = (doc.getObject("XY_Plane"), [""])
sketch11.MapMode = "FlatFace"
sketch11.AttachmentOffset = App.Placement(Vector(0, 0, 75), App.Rotation())
sketch11.addGeometry([
    Part.LineSegment(Vector(4.77, 9.07, 0), Vector(4.77, 9.37, 0)),  # 0
    Part.LineSegment(Vector(4.77, 9.37, 0), Vector(-4.77, 9.37, 0)),  # 1
    Part.LineSegment(Vector(-4.77, 9.37, 0), Vector(-4.77, 9.07, 0)),  # 2
    Part.ArcOfCircle(Part.Circle(Vector(-3.19, 9.07, 0), Vector(0, 0, 1), 1.58), math.radians(180), math.radians(270)),  # 3
    Part.LineSegment(Vector(-3.19, 7.49, 0), Vector(3.19, 7.49, 0)),  # 4
    Part.ArcOfCircle(Part.Circle(Vector(3.19, 9.07, 0), Vector(0, 0, 1), 1.58), math.radians(-90), math.radians(0)),  # 5
], False)
sketch11.addConstraint([
    Sketcher.Constraint("Coincident", 0, 2, 1, 1),
    Sketcher.Constraint("Coincident", 1, 2, 2, 1),
    Sketcher.Constraint("Tangent", 2, 2, 3, 1),
    Sketcher.Constraint("Tangent", 3, 2, 4, 1),
    Sketcher.Constraint("Tangent", 4, 2, 5, 1),
    Sketcher.Constraint("Tangent", 5, 2, 0, 1),
    Sketcher.Constraint("Vertical", 0),
    Sketcher.Constraint("Horizontal", 1),
    Sketcher.Constraint("Vertical", 2),
    Sketcher.Constraint("Horizontal", 4),
    Sketcher.Constraint("Equal", 3, 5),
    Sketcher.Constraint("Radius", 3, Q("1.58 mm")),
    Sketcher.Constraint("DistanceX", 1, 2, 1, 1, Q("9.54 mm")),
    Sketcher.Constraint("DistanceY", 3, 2, 1, 2, Q("1.88 mm")),
    Sketcher.Constraint("DistanceX", 3, 3, -1, 1, Q("3.19 mm")),
    Sketcher.Constraint("DistanceY", -1, 1, 3, 3, Q("9.07 mm")),
])
sketch11.setExpression("Constraints[11]", "Params.sketch11_radius")
sketch11.setExpression("Constraints[12]", "Params.sketch11_width")
pocket4 = body.newObject("PartDesign::Pocket", "Pocket003")
pocket4.Profile = sketch11
pocket4.setExpression("Length", "Params.pocket4_length")

# Sketch on YZ plane
sketch12 = body.newObject("Sketcher::SketchObject", "Sketch011")
sketch12.AttachmentSupport = (doc.getObject("YZ_Plane"), [""])
sketch12.MapMode = "FlatFace"
sketch12.AttachmentOffset = App.Placement(Vector(0, 0, 17.5), App.Rotation())
sketch12.addGeometry([
    Part.LineSegment(Vector(9.4, -30.9, 0), Vector(11.8, -30.9, 0)),  # 0
    Part.LineSegment(Vector(11.8, -30.9, 0), Vector(11.8, -17.2, 0)),  # 1
    Part.LineSegment(Vector(11.8, -17.2, 0), Vector(9.4, -17.2, 0)),  # 2
    Part.ArcOfCircle(Part.Circle(Vector(9.4, -18, 0), Vector(0, 0, 1), 0.8), math.radians(90), math.radians(180)),  # 3
    Part.LineSegment(Vector(8.6, -18, 0), Vector(8.6, -30.1, 0)),  # 4
    Part.ArcOfCircle(Part.Circle(Vector(9.4, -30.1, 0), Vector(0, 0, 1), 0.8), math.radians(180), math.radians(270)),  # 5
    Part.LineSegment(Vector(9.4, 29.1, 0), Vector(11.8, 29.1, 0)),  # 6
    Part.LineSegment(Vector(11.8, 29.1, 0), Vector(11.8, 42.8, 0)),  # 7
    Part.LineSegment(Vector(11.8, 42.8, 0), Vector(9.4, 42.8, 0)),  # 8
    Part.ArcOfCircle(Part.Circle(Vector(9.4, 42, 0), Vector(0, 0, 1), 0.8), math.radians(90), math.radians(180)),  # 9
    Part.LineSegment(Vector(8.6, 42, 0), Vector(8.6, 29.9, 0)),  # 10
    Part.ArcOfCircle(Part.Circle(Vector(9.4, 29.9, 0), Vector(0, 0, 1), 0.8), math.radians(180), math.radians(270)),  # 11
    Part.LineSegment(Vector(9.4, 9.1, 0), Vector(11.8, 9.1, 0)),  # 12
    Part.LineSegment(Vector(11.8, 9.1, 0), Vector(11.8, 22.8, 0)),  # 13
    Part.LineSegment(Vector(11.8, 22.8, 0), Vector(9.4, 22.8, 0)),  # 14
    Part.ArcOfCircle(Part.Circle(Vector(9.4, 22, 0), Vector(0, 0, 1), 0.8), math.radians(90), math.radians(180)),  # 15
    Part.LineSegment(Vector(8.6, 22, 0), Vector(8.6, 9.9, 0)),  # 16
    Part.ArcOfCircle(Part.Circle(Vector(9.4, 9.9, 0), Vector(0, 0, 1), 0.8), math.radians(180), math.radians(270)),  # 17
    Part.LineSegment(Vector(9.4, -10.9, 0), Vector(11.8, -10.9, 0)),  # 18
    Part.LineSegment(Vector(11.8, -10.9, 0), Vector(11.8, 2.8, 0)),  # 19
    Part.LineSegment(Vector(11.8, 2.8, 0), Vector(9.4, 2.8, 0)),  # 20
    Part.ArcOfCircle(Part.Circle(Vector(9.4, 2, 0), Vector(0, 0, 1), 0.8), math.radians(90), math.radians(180)),  # 21
    Part.LineSegment(Vector(8.6, 2, 0), Vector(8.6, -10.1, 0)),  # 22
    Part.ArcOfCircle(Part.Circle(Vector(9.4, -10.1, 0), Vector(0, 0, 1), 0.8), math.radians(180), math.radians(270)),  # 23
], False)
sketch12.addConstraint([
    Sketcher.Constraint("Coincident", 0, 2, 1, 1),
    Sketcher.Constraint("Coincident", 1, 2, 2, 1),
    Sketcher.Constraint("Tangent", 2, 2, 3, 1),
    Sketcher.Constraint("Tangent", 3, 2, 4, 1),
    Sketcher.Constraint("Tangent", 4, 2, 5, 1),
    Sketcher.Constraint("Tangent", 5, 2, 0, 1),
    Sketcher.Constraint("Coincident", 6, 2, 7, 1),
    Sketcher.Constraint("Coincident", 7, 2, 8, 1),
    Sketcher.Constraint("Tangent", 8, 2, 9, 1),
    Sketcher.Constraint("Tangent", 9, 2, 10, 1),
    Sketcher.Constraint("Tangent", 10, 2, 11, 1),
    Sketcher.Constraint("Tangent", 11, 2, 6, 1),
    Sketcher.Constraint("Coincident", 12, 2, 13, 1),
    Sketcher.Constraint("Coincident", 13, 2, 14, 1),
    Sketcher.Constraint("Tangent", 14, 2, 15, 1),
    Sketcher.Constraint("Tangent", 15, 2, 16, 1),
    Sketcher.Constraint("Tangent", 16, 2, 17, 1),
    Sketcher.Constraint("Tangent", 17, 2, 12, 1),
    Sketcher.Constraint("Coincident", 18, 2, 19, 1),
    Sketcher.Constraint("Coincident", 19, 2, 20, 1),
    Sketcher.Constraint("Tangent", 20, 2, 21, 1),
    Sketcher.Constraint("Tangent", 21, 2, 22, 1),
    Sketcher.Constraint("Tangent", 22, 2, 23, 1),
    Sketcher.Constraint("Tangent", 23, 2, 18, 1),
    Sketcher.Constraint("Horizontal", 0),
    Sketcher.Constraint("Vertical", 1),
    Sketcher.Constraint("Horizontal", 2),
    Sketcher.Constraint("Vertical", 4),
    Sketcher.Constraint("Horizontal", 6),
    Sketcher.Constraint("Vertical", 7),
    Sketcher.Constraint("Horizontal", 8),
    Sketcher.Constraint("Vertical", 10),
    Sketcher.Constraint("Horizontal", 12),
    Sketcher.Constraint("Vertical", 13),
    Sketcher.Constraint("Horizontal", 14),
    Sketcher.Constraint("Vertical", 16),
    Sketcher.Constraint("Horizontal", 18),
    Sketcher.Constraint("Vertical", 19),
    Sketcher.Constraint("Horizontal", 20),
    Sketcher.Constraint("Vertical", 22),
    Sketcher.Constraint("Equal", 3, 5),
    Sketcher.Constraint("Equal", 5, 9),
    Sketcher.Constraint("Equal", 9, 11),
    Sketcher.Constraint("Equal", 11, 15),
    Sketcher.Constraint("Equal", 15, 17),
    Sketcher.Constraint("Equal", 17, 21),
    Sketcher.Constraint("Equal", 21, 23),
    Sketcher.Constraint("Vertical", 5, 3, 9, 3),
    Sketcher.Constraint("Vertical", 11, 3, 15, 3),
    Sketcher.Constraint("Vertical", 17, 3, 21, 3),
    Sketcher.Constraint("Vertical", 1, 2, 6, 2),
    Sketcher.Constraint("Vertical", 7, 2, 12, 2),
    Sketcher.Constraint("Vertical", 13, 2, 18, 2),
    Sketcher.Constraint("Equal", 1, 7),
    Sketcher.Constraint("Equal", 7, 13),
    Sketcher.Constraint("Equal", 13, 19),
    Sketcher.Constraint("Radius", 3, Q("0.8 mm")),
    Sketcher.Constraint("DistanceY", 1, 1, 1, 2, Q("13.7 mm")),
    Sketcher.Constraint("DistanceY", 13, 2, 6, 2, Q("6.3 mm")),
    Sketcher.Constraint("DistanceY", 1, 2, 18, 2, Q("6.3 mm")),
    Sketcher.Constraint("DistanceY", 19, 2, 12, 2, Q("6.3 mm")),
    Sketcher.Constraint("DistanceX", 3, 2, 1, 2, Q("3.16 mm")),
    Sketcher.Constraint("DistanceY", 3, 3, -1, 1, Q("18.02 mm")),
    Sketcher.Constraint("DistanceX", -1, 1, 3, 3, Q("9.425 mm")),
])
sketch12.setExpression("Constraints[56]", "Params.sketch12_radius")
sketch12.setExpression("Constraints[57]", "Params.sketch12_height")
pocket5 = body.newObject("PartDesign::Pocket", "Pocket004")
pocket5.Profile = sketch12
pocket5.setExpression("Length", "Params.pocket5_length")
doc.recompute()

fillet = body.newObject("PartDesign::Fillet", "Fillet")
fillet.Base = (pocket5, edges_at(pocket5, [
    (14.15, 0, 69.5),
    (-9.85, 0, 69.5),
    (-9.85, 0, -69.5),
    (14.15, 0, -69.5),
]))
fillet.setExpression("Radius", "Params.fillet_radius")
doc.recompute()

fillet2 = body.newObject("PartDesign::Fillet", "Fillet001")
fillet2.Base = (fillet, edges_at(fillet, [
    (-14.768, 3, 72.268),
    (0, 3, 73),
    (14.768, 3, 72.268),
    (15.5, 3, 0),
    (14.768, 3, -72.268),
    (0, 3, -73),
    (-14.768, 3, -72.268),
    (-15.5, 3, 0),
]))
fillet2.setExpression("Radius", "Params.fillet2_radius")

# Sketch on XZ plane
sketch13 = body.newObject("Sketcher::SketchObject", "Sketch012")
sketch13.AttachmentSupport = (doc.getObject("XZ_Plane"), [""])
sketch13.MapMode = "FlatFace"
sketch13.addGeometry([
    Part.ArcOfCircle(Part.Circle(Vector(-12.5, -70, 0), Vector(0, 0, 1), 5), math.radians(180), math.radians(270)),  # 0
    Part.LineSegment(Vector(-12.5, -75, 0), Vector(12.5, -75, 0)),  # 1
    Part.ArcOfCircle(Part.Circle(Vector(12.5, -70, 0), Vector(0, 0, 1), 5), math.radians(-90), math.radians(0)),  # 2
    Part.LineSegment(Vector(17.5, -70, 0), Vector(17.5, 70, 0)),  # 3
    Part.ArcOfCircle(Part.Circle(Vector(12.5, 70, 0), Vector(0, 0, 1), 5), math.radians(0), math.radians(90)),  # 4
    Part.LineSegment(Vector(12.5, 75, 0), Vector(-12.5, 75, 0)),  # 5
    Part.ArcOfCircle(Part.Circle(Vector(-12.5, 70, 0), Vector(0, 0, 1), 5), math.radians(90), math.radians(180)),  # 6
    Part.LineSegment(Vector(-17.5, 70, 0), Vector(-17.5, -70, 0)),  # 7
    Part.Circle(Vector(-12, -69.5, 0), Vector(0, 0, 1), 4),  # 8
    Part.Circle(Vector(12, -69.5, 0), Vector(0, 0, 1), 4),  # 9
    Part.Circle(Vector(-12, 69.5, 0), Vector(0, 0, 1), 4),  # 10
    Part.Circle(Vector(0, 0, 0), Vector(0, 0, 1), 4),  # 11
    Part.Circle(Vector(12, 69.5, 0), Vector(0, 0, 1), 4),  # 12
], False)
sketch13.addConstraint([
    Sketcher.Constraint("Tangent", 0, 2, 1, 1),
    Sketcher.Constraint("Tangent", 1, 2, 2, 1),
    Sketcher.Constraint("Tangent", 2, 2, 3, 1),
    Sketcher.Constraint("Tangent", 3, 2, 4, 1),
    Sketcher.Constraint("Tangent", 4, 2, 5, 1),
    Sketcher.Constraint("Tangent", 5, 2, 6, 1),
    Sketcher.Constraint("Tangent", 6, 2, 7, 1),
    Sketcher.Constraint("Tangent", 7, 2, 0, 1),
    Sketcher.Constraint("Horizontal", 1),
    Sketcher.Constraint("Vertical", 3),
    Sketcher.Constraint("Horizontal", 5),
    Sketcher.Constraint("Vertical", 7),
    Sketcher.Constraint("Coincident", 11, 3, -1, 1),
    Sketcher.Constraint("Equal", 0, 2),
    Sketcher.Constraint("Equal", 2, 4),
    Sketcher.Constraint("Equal", 4, 6),
    Sketcher.Constraint("Equal", 8, 9),
    Sketcher.Constraint("Equal", 9, 10),
    Sketcher.Constraint("Equal", 10, 11),
    Sketcher.Constraint("Equal", 11, 12),
    Sketcher.Constraint("Symmetric", 0, 3, 4, 3, -1, 1),
    Sketcher.Constraint("Symmetric", 9, 3, 10, 3, -1, 1),
    Sketcher.Constraint("Symmetric", 8, 3, 12, 3, -1, 1),
    Sketcher.Constraint("Symmetric", 8, 3, 9, 3, -2),
    Sketcher.Constraint("Diameter", 8, Q("8 mm")),
    Sketcher.Constraint("Radius", 0, Q("5 mm")),
    Sketcher.Constraint("DistanceX", 1, 1, 1, 2, Q("25 mm")),
    Sketcher.Constraint("DistanceY", 3, 1, 3, 2, Q("140 mm")),
    Sketcher.Constraint("DistanceX", 8, 3, -1, 1, Q("12 mm")),
    Sketcher.Constraint("DistanceY", 8, 3, 10, 3, Q("139 mm")),
])
sketch13.setExpression("Constraints[24]", "Params.sketch13_diameter")
sketch13.setExpression("Constraints[25]", "Params.sketch13_radius")
sketch13.setExpression("Constraints[26]", "Params.sketch13_width")
sketch13.setExpression("Constraints[27]", "Params.sketch13_height")
pad8 = body.newObject("PartDesign::Pad", "Pad007")
pad8.Profile = sketch13
pad8.setExpression("Length", "Params.pad8_length")
doc.recompute()

fillet3 = body.newObject("PartDesign::Fillet", "Fillet002")
fillet3.Base = (pad8, edges_at(pad8, [
    (16.035, -0.5, 73.535),
    (0, -0.5, 75),
    (-16.035, -0.5, 73.535),
    (-17.5, -0.5, 0),
    (-16.035, -0.5, -73.535),
    (0, -0.5, -75),
    (16.035, -0.5, -73.535),
    (17.5, -0.5, 0),
]))
fillet3.setExpression("Radius", "Params.fillet3_radius")

doc.recompute()
